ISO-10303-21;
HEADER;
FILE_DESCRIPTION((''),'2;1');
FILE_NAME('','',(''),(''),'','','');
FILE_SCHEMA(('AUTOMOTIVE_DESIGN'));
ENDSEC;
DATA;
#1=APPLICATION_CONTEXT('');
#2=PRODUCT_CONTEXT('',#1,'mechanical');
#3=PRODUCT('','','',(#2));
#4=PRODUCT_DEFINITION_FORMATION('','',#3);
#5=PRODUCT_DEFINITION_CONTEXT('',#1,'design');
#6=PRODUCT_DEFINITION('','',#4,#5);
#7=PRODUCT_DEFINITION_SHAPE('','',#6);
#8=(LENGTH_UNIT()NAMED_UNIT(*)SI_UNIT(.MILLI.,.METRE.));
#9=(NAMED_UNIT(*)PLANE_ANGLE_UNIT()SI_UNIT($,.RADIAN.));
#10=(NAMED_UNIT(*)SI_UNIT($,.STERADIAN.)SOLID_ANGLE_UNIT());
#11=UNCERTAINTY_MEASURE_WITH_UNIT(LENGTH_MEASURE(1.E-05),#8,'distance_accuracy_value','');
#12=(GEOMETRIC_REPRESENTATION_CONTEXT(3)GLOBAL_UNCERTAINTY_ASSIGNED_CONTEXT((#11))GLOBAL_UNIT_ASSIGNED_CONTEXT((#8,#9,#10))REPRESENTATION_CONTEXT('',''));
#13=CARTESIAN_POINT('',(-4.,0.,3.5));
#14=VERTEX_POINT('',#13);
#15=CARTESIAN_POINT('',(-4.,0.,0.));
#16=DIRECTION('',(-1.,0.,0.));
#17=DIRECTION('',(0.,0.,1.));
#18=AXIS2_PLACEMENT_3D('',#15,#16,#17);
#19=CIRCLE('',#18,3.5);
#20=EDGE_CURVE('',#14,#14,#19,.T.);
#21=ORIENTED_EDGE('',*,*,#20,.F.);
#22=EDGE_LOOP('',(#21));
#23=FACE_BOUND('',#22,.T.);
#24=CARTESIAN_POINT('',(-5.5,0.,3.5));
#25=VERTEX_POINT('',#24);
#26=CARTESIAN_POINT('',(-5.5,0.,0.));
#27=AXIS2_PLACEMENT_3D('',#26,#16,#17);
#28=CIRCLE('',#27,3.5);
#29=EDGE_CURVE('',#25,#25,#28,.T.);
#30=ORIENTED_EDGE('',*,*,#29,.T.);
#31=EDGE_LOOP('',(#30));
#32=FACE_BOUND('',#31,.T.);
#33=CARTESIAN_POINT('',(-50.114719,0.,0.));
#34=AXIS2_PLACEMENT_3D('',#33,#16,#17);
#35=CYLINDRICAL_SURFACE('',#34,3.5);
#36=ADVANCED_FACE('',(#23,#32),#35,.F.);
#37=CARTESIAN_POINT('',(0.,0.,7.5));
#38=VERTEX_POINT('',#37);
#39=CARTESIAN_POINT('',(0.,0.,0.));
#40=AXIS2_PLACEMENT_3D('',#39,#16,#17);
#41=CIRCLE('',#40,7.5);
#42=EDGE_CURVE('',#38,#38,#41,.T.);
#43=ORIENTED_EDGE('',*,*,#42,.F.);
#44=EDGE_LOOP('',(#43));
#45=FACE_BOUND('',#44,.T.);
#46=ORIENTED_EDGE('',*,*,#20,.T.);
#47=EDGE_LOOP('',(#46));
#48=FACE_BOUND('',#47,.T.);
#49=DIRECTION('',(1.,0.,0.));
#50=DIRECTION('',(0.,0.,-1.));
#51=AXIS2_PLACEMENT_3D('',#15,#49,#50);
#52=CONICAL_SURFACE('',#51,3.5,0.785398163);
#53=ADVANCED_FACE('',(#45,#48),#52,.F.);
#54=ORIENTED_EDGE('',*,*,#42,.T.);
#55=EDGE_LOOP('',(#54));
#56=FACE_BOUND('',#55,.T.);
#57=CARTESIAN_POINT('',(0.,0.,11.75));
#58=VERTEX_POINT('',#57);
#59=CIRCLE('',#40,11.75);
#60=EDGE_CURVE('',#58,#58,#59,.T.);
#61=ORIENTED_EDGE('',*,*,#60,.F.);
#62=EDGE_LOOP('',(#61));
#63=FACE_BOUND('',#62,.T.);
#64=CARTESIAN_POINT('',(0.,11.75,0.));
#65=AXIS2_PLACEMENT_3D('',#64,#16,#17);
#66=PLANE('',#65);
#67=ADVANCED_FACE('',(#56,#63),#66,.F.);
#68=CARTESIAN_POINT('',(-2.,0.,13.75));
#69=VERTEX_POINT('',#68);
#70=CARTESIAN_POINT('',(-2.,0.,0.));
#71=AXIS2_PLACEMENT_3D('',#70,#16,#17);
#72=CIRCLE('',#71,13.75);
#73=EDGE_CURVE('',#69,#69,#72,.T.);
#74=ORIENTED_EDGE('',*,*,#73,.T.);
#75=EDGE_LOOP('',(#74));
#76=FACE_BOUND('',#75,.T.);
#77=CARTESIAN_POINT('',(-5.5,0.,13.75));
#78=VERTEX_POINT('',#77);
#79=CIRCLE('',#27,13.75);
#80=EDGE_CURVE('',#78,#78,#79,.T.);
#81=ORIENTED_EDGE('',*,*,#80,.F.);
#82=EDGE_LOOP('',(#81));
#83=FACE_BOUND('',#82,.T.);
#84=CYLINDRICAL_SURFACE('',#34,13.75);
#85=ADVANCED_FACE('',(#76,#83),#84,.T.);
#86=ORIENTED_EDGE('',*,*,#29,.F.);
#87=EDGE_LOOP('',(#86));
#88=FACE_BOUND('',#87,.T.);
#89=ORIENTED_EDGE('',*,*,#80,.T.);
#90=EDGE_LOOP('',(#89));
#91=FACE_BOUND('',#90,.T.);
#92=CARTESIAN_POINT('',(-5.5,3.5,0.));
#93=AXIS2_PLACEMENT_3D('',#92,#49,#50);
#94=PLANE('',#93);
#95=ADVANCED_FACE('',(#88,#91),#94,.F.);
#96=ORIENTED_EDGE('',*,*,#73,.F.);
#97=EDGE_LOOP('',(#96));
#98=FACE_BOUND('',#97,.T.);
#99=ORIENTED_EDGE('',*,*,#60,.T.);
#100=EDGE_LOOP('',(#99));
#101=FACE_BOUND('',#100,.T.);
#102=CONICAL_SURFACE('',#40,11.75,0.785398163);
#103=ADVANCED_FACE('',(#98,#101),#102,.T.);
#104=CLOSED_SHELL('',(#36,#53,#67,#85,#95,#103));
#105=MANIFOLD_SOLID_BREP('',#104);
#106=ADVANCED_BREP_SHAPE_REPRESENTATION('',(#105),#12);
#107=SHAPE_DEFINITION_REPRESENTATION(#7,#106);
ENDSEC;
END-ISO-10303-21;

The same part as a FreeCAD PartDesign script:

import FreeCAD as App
import Part
import Sketcher
from FreeCAD import Vector
Q = App.Units.Quantity


def add_polygon(sketch, points):
    """Adds a closed chain of lines whose ends are joined by coincident constraints."""
    first, n = sketch.GeometryCount, len(points)
    for a, b in zip(points, points[1:] + points[:1]):
        sketch.addGeometry(Part.LineSegment(App.Vector(*a, 0), App.Vector(*b, 0)), False)
    for i in range(n):
        sketch.addConstraint(Sketcher.Constraint("Coincident", first + i, 2, first + (i + 1) % n, 1))

doc = App.newDocument("Part")
body = doc.addObject("PartDesign::Body", "Body")

# Sketch on XY plane
sketch1 = body.newObject("Sketcher::SketchObject", "Sketch")
sketch1.AttachmentSupport = (doc.getObject("XY_Plane"), [""])
sketch1.MapMode = "FlatFace"
add_polygon(sketch1, [(-5.5, 13.75), (-5.5, 3.5), (-4, 3.5), (0, 7.5), (0, 11.75), (-2, 13.75)])  # lines 0-5
sketch1.addConstraint([
    Sketcher.Constraint("Vertical", 0),
    Sketcher.Constraint("Horizontal", 1),
    Sketcher.Constraint("Vertical", 3),
    Sketcher.Constraint("Horizontal", 5),
    Sketcher.Constraint("PointOnObject", 2, 2, -2),
    Sketcher.Constraint("Perpendicular", 2, 4),
    Sketcher.Constraint("Angle", 2, Q("45 deg")),
    Sketcher.Constraint("DistanceX", 1, 1, 1, 2, Q("1.5 mm")),
    Sketcher.Constraint("DistanceX", 5, 2, 5, 1, Q("3.5 mm")),
    Sketcher.Constraint("DistanceX", 1, 2, -1, 1, Q("4 mm")),
    Sketcher.Constraint("DistanceY", 0, 2, 0, 1, Q("10.25 mm")),
    Sketcher.Constraint("DistanceY", -1, 1, 0, 2, Q("3.5 mm")),
])
revolution = body.newObject("PartDesign::Revolution", "Revolution")
revolution.Profile = sketch1
revolution.ReferenceAxis = (sketch1, ["H_Axis"])
revolution.Angle = 360

doc.recompute()
